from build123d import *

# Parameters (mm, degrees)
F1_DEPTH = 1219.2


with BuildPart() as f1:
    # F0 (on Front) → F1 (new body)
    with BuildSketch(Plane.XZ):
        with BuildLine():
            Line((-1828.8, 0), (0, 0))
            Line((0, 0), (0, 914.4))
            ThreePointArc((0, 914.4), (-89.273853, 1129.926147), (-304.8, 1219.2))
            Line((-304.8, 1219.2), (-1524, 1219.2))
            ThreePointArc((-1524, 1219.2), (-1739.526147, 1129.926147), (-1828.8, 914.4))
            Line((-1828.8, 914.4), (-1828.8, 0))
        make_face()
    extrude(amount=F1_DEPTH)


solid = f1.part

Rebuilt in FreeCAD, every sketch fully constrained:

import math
import FreeCAD as App
import Part
import Sketcher
from FreeCAD import Vector
Q = App.Units.Quantity

doc = App.newDocument("Part")
params = doc.addObject("Spreadsheet::Sheet", "Params")
for row, (alias, value) in enumerate([
    ("sketch1_radius", "12 in"),
    ("sketch1_width", "72 in"),
    ("sketch1_height", "36 in"),
    ("pad1_length", "48 in"),
], start=1):
    params.set(f"A{row}", alias)
    params.set(f"B{row}", "=" + value)
    params.setAlias(f"B{row}", alias)

body = doc.addObject("PartDesign::Body", "Body")

# Sketch on XZ plane
sketch1 = body.newObject("Sketcher::SketchObject", "Sketch")
sketch1.AttachmentSupport = (doc.getObject("XZ_Plane"), [""])
sketch1.MapMode = "FlatFace"
sketch1.addGeometry([
    Part.LineSegment(Vector(-1828.8, 0, 0), Vector(0, 0, 0)),  # 0
    Part.LineSegment(Vector(0, 0, 0), Vector(0, 914.4, 0)),  # 1
    Part.ArcOfCircle(Part.Circle(Vector(-304.8, 914.4, 0), Vector(0, 0, 1), 304.8), math.radians(0), math.radians(90)),  # 2
    Part.LineSegment(Vector(-304.8, 1219.2, 0), Vector(-1524, 1219.2, 0)),  # 3
    Part.ArcOfCircle(Part.Circle(Vector(-1524, 914.4, 0), Vector(0, 0, 1), 304.8), math.radians(90), math.radians(180)),  # 4
    Part.LineSegment(Vector(-1828.8, 914.4, 0), Vector(-1828.8, 0, 0)),  # 5
], False)
sketch1.addConstraint([
    Sketcher.Constraint("Coincident", 0, 2, 1, 1),
    Sketcher.Constraint("Tangent", 1, 2, 2, 1),
    Sketcher.Constraint("Tangent", 2, 2, 3, 1),
    Sketcher.Constraint("Tangent", 3, 2, 4, 1),
    Sketcher.Constraint("Tangent", 4, 2, 5, 1),
    Sketcher.Constraint("Coincident", 5, 2, 0, 1),
    Sketcher.Constraint("Horizontal", 0),
    Sketcher.Constraint("Vertical", 1),
    Sketcher.Constraint("Horizontal", 3),
    Sketcher.Constraint("Vertical", 5),
    Sketcher.Constraint("Coincident", 0, 2, -1, 1),
    Sketcher.Constraint("Equal", 2, 4),
    Sketcher.Constraint("Radius", 2, Q("12 in")),
    Sketcher.Constraint("DistanceX", 0, 1, 0, 2, Q("72 in")),
    Sketcher.Constraint("DistanceY", 1, 1, 1, 2, Q("36 in")),
])
sketch1.setExpression("Constraints[12]", "Params.sketch1_radius")
sketch1.setExpression("Constraints[13]", "Params.sketch1_width")
sketch1.setExpression("Constraints[14]", "Params.sketch1_height")
pad1 = body.newObject("PartDesign::Pad", "Pad")
pad1.Profile = sketch1
pad1.setExpression("Length", "Params.pad1_length")

doc.recompute()
